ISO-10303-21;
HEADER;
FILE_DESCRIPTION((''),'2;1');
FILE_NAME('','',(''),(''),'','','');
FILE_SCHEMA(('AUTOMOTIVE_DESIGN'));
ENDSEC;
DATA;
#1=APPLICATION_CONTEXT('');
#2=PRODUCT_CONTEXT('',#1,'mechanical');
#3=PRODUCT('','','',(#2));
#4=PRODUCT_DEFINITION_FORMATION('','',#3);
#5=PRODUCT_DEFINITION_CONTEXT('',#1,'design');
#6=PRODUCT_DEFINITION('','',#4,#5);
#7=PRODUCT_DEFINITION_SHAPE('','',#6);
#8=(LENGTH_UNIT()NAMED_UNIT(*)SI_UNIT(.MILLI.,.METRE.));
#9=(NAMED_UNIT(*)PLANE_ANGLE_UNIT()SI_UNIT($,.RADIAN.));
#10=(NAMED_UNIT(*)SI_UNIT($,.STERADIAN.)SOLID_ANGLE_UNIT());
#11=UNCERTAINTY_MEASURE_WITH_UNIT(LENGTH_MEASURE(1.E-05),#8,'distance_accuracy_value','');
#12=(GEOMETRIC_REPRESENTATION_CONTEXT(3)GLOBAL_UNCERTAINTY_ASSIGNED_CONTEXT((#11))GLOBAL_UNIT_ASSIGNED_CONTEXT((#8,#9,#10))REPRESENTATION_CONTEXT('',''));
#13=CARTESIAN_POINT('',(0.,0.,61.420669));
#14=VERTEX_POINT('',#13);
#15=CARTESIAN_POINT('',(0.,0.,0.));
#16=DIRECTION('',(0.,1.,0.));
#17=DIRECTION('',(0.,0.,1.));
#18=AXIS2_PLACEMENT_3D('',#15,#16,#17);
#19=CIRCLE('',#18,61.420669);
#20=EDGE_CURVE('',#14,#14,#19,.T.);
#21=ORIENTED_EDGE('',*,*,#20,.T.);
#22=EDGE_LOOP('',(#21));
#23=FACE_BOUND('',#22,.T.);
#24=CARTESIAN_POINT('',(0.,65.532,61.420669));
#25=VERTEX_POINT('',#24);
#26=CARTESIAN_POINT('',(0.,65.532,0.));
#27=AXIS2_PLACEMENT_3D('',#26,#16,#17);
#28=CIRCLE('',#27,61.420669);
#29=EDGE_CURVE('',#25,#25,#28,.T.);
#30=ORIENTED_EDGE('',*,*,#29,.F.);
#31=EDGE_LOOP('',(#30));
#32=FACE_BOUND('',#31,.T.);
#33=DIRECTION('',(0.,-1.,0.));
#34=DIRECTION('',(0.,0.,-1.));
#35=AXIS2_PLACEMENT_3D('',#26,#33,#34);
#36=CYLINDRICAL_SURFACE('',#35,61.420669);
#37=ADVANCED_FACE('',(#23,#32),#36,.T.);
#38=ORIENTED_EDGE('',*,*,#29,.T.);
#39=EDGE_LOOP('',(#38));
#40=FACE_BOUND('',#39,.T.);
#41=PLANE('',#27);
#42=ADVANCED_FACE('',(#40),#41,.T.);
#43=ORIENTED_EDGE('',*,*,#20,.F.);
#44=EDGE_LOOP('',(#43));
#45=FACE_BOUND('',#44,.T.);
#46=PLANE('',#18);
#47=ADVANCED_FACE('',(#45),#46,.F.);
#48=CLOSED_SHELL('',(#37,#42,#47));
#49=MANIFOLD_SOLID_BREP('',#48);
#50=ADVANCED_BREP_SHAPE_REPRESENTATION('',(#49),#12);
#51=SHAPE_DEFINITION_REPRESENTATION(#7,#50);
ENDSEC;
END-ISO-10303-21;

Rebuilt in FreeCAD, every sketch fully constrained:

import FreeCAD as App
import Part
import Sketcher

V = App.Vector
Q = App.Units.Quantity

doc = App.newDocument("Part")
params = doc.addObject("Spreadsheet::Sheet", "Params")
for row, (alias, value) in enumerate([
    ("pad1_length", "2.58 in"),
], start=1):
    params.set(f"A{row}", alias)
    params.set(f"B{row}", "=" + value)
    params.setAlias(f"B{row}", alias)

body = doc.addObject("PartDesign::Body", "Body")

# Sketch on XZ plane
sketch1 = body.newObject("Sketcher::SketchObject", "Sketch")
sketch1.AttachmentSupport = (doc.getObject("XZ_Plane"), [""])
sketch1.MapMode = "FlatFace"
sketch1.addGeometry(Part.Circle(V(0, 0, 0), V(0, 0, 1), 61.420669), False)
sketch1.addConstraint([
    Sketcher.Constraint("Coincident", 0, 3, -1, 1),
    Sketcher.Constraint("Diameter", 0, Q("122.841338 mm")),
])
pad1 = body.newObject("PartDesign::Pad", "Pad")
pad1.Profile = sketch1
pad1.setExpression("Length", "Params.pad1_length")
pad1.Reversed = True

doc.recompute()
